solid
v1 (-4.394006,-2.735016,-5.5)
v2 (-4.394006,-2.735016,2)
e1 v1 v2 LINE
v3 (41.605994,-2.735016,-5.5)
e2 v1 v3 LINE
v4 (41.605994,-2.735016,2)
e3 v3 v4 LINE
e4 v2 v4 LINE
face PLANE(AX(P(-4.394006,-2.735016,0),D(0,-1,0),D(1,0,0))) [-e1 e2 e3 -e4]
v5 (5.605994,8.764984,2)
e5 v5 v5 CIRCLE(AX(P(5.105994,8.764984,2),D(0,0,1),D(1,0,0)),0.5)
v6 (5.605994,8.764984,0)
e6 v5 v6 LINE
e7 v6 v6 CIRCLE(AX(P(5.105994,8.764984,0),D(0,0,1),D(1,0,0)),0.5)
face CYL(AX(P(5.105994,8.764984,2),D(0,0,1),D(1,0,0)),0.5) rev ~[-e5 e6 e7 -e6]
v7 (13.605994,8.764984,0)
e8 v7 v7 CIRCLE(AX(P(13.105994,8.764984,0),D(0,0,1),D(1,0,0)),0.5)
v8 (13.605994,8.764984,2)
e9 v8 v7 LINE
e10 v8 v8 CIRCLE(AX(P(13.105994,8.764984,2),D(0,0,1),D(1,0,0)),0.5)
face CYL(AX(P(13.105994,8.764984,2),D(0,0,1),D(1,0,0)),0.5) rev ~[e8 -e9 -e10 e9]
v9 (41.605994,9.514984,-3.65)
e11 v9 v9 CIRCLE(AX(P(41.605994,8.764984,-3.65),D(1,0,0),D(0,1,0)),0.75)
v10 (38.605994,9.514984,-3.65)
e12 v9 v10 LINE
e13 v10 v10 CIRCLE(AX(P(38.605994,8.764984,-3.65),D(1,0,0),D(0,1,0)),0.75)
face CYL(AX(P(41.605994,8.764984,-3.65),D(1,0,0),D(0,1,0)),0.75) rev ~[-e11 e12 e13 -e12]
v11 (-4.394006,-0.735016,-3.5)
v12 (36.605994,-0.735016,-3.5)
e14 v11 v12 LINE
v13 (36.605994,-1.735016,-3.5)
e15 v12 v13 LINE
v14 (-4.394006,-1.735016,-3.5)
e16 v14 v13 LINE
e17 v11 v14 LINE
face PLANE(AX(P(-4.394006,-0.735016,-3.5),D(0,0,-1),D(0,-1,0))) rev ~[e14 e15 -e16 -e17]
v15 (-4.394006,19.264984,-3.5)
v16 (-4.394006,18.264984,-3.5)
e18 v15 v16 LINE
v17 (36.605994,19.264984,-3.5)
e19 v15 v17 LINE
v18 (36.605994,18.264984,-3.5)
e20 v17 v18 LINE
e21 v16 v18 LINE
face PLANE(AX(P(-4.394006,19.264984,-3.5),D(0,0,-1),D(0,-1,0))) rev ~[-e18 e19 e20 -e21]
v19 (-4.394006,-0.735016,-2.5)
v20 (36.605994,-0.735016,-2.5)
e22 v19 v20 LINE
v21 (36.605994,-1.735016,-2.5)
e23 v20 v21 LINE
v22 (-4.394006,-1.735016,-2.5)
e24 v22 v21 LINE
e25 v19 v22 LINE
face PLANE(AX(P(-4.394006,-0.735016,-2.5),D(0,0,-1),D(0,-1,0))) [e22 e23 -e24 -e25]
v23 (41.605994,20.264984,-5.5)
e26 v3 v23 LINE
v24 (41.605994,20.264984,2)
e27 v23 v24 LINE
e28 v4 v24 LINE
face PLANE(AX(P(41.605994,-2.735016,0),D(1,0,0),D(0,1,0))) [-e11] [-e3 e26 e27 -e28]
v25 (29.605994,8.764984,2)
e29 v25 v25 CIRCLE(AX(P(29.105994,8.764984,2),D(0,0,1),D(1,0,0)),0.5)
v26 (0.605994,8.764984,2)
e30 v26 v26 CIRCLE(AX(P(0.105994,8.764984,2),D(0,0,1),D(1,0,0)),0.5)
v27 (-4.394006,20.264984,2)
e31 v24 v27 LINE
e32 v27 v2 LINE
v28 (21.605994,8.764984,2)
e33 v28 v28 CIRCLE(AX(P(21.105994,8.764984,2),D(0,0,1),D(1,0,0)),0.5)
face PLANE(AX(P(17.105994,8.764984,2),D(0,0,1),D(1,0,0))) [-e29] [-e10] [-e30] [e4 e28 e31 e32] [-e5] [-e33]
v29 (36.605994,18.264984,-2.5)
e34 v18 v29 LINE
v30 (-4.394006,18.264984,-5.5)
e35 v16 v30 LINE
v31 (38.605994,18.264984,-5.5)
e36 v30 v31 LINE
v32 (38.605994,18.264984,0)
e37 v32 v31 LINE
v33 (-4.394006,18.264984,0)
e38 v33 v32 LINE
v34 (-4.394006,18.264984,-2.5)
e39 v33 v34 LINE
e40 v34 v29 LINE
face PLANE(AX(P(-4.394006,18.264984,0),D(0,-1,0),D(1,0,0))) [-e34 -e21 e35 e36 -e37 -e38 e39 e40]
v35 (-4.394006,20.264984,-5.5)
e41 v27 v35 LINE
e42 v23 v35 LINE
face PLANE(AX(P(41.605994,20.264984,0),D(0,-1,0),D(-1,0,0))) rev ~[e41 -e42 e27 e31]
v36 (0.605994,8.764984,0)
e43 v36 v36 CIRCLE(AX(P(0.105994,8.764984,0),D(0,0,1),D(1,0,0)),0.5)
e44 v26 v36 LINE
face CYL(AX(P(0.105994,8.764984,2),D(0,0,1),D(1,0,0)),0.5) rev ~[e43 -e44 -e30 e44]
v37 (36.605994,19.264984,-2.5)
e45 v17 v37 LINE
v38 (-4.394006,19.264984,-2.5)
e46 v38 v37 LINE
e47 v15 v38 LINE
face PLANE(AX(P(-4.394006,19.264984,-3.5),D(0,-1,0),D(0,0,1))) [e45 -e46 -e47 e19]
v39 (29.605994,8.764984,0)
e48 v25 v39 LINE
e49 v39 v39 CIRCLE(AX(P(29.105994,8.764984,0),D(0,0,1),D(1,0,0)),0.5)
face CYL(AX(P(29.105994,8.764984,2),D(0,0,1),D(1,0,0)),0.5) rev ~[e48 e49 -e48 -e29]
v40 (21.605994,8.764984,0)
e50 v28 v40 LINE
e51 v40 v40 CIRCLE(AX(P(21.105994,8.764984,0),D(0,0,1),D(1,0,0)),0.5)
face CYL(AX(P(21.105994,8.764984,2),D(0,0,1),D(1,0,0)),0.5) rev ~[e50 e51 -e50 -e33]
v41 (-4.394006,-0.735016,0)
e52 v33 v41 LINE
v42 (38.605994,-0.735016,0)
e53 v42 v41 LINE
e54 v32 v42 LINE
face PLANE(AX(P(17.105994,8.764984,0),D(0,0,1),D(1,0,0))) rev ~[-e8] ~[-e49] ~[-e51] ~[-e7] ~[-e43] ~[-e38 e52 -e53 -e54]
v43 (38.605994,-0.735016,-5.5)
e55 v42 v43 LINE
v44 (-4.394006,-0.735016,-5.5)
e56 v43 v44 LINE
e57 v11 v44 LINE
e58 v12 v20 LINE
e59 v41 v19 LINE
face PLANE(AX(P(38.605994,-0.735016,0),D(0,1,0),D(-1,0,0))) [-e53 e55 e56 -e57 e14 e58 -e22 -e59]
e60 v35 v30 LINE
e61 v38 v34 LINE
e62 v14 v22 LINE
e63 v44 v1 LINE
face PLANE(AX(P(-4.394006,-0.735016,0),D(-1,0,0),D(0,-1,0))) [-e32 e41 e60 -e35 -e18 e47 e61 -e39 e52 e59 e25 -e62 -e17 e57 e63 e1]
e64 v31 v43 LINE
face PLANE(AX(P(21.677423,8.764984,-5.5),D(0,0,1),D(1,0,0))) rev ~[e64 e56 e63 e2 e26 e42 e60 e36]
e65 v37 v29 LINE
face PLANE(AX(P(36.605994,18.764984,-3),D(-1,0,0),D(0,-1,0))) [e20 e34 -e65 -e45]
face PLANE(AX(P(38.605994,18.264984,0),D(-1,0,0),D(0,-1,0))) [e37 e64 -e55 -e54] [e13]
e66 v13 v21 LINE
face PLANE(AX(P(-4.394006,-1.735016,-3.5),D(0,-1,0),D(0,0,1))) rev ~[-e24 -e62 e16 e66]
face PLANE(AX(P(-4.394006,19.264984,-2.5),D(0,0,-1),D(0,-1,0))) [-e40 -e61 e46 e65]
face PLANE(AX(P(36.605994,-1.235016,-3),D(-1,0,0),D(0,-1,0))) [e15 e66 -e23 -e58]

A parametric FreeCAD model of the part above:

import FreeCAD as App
import Part
import Sketcher

V = App.Vector


def add_polygon(sketch, points):
    """Adds a closed chain of lines whose ends are joined by coincident constraints."""
    first, n = sketch.GeometryCount, len(points)
    for a, b in zip(points, points[1:] + points[:1]):
        sketch.addGeometry(Part.LineSegment(App.Vector(*a, 0), App.Vector(*b, 0)), False)
    for i in range(n):
        sketch.addConstraint(Sketcher.Constraint("Coincident", first + i, 2, first + (i + 1) % n, 1))

doc = App.newDocument("Part")
body = doc.addObject("PartDesign::Body", "Body")

sketch1 = doc.addObject("Sketcher::SketchObject", "Sketch")
body.addObject(sketch1)
sketch1.AttachmentSupport = (doc.XY_Plane, [""])
sketch1.MapMode = "FlatFace"
add_polygon(sketch1, [(-4, -3), (42, -3), (42, 20), (-4, 20)])
sketch1.addConstraint([
    Sketcher.Constraint("Horizontal", 0),
    Sketcher.Constraint("Vertical", 1),
    Sketcher.Constraint("Horizontal", 2),
    Sketcher.Constraint("Vertical", 3),
    Sketcher.Constraint("DistanceX", 0, 1, 0, 2, 46.0),
    Sketcher.Constraint("DistanceY", 1, 1, 1, 2, 23.0),
    Sketcher.Constraint("DistanceX", -1, 1, 0, 2, 41.605994),
    Sketcher.Constraint("DistanceY", 0, 2, -1, 1, 2.735016),
])
pad1 = doc.addObject("PartDesign::Pad", "Pad")
body.addObject(pad1)
pad1.Profile = sketch1
pad1.Length = 2

sketch2 = doc.addObject("Sketcher::SketchObject", "Sketch001")
body.addObject(sketch2)
sketch2.AttachmentSupport = (doc.XY_Plane, [""])
sketch2.MapMode = "FlatFace"
add_polygon(sketch2, [(-4.4, -0.7), (-4.4, -2.7), (41.6, -2.7), (41.6, 20.3), (-4.4, 20.3), (-4.4, 18.3), (38.6, 18.3), (38.6, -0.7)])
sketch2.addConstraint([
    Sketcher.Constraint("Vertical", 0),
    Sketcher.Constraint("Horizontal", 1),
    Sketcher.Constraint("Vertical", 2),
    Sketcher.Constraint("Horizontal", 3),
    Sketcher.Constraint("Vertical", 4),
    Sketcher.Constraint("Horizontal", 5),
    Sketcher.Constraint("Vertical", 6),
    Sketcher.Constraint("Horizontal", 7),
    Sketcher.Constraint("Vertical", 0, 2, 3, 2),
    Sketcher.Constraint("Equal", 0, 4),
    Sketcher.Constraint("DistanceX", 1, 1, 1, 2, 46.0),
    Sketcher.Constraint("DistanceX", 5, 1, 5, 2, 43.0),
    Sketcher.Constraint("DistanceY", 0, 2, 0, 1, 2.0),
    Sketcher.Constraint("DistanceY", 2, 1, 2, 2, 23.0),
    Sketcher.Constraint("DistanceX", 0, 2, -1, 1, 4.394006),
    Sketcher.Constraint("DistanceY", 0, 2, -1, 1, 2.735016),
])
pad2 = doc.addObject("PartDesign::Pad", "Pad001")
body.addObject(pad2)
pad2.Profile = sketch2
pad2.Length = 5.5
pad2.Reversed = True

sketch3 = doc.addObject("Sketcher::SketchObject", "Sketch002")
body.addObject(sketch3)
sketch3.AttachmentSupport = (doc.YZ_Plane, [""])
sketch3.MapMode = "FlatFace"
sketch3.AttachmentOffset = App.Placement(V(0, 0, -4.394006), App.Rotation())
add_polygon(sketch3, [(19.3, -2.5), (19.3, -3.5), (18.3, -3.5), (18.3, -2.5)])
add_polygon(sketch3, [(-0.7, -2.5), (-0.7, -3.5), (-1.7, -3.5), (-1.7, -2.5)])
sketch3.addConstraint([
    Sketcher.Constraint("Vertical", 0),
    Sketcher.Constraint("Horizontal", 1),
    Sketcher.Constraint("Vertical", 2),
    Sketcher.Constraint("Horizontal", 3),
    Sketcher.Constraint("Vertical", 4),
    Sketcher.Constraint("Horizontal", 5),
    Sketcher.Constraint("Vertical", 6),
    Sketcher.Constraint("Horizontal", 7),
    Sketcher.Constraint("Horizontal", 1, 2, 4, 2),
    Sketcher.Constraint("Horizontal", 3, 2, 6, 2),
    Sketcher.Constraint("Equal", 3, 5),
    Sketcher.Constraint("Equal", 7, 0),
    Sketcher.Constraint("DistanceX", 1, 2, 1, 1, 1.0),
    Sketcher.Constraint("DistanceX", 4, 2, 1, 2, 19.0),
    Sketcher.Constraint("DistanceY", 0, 2, -1, 1, 3.5),
    Sketcher.Constraint("DistanceX", -1, 1, 0, 2, 19.264984),
])
pocket1 = doc.addObject("PartDesign::Pocket", "Pocket")
body.addObject(pocket1)
pocket1.Profile = sketch3
pocket1.Length = 41
pocket1.Reversed = True

sketch4 = doc.addObject("Sketcher::SketchObject", "Sketch003")
body.addObject(sketch4)
sketch4.AttachmentSupport = (doc.YZ_Plane, [""])
sketch4.MapMode = "FlatFace"
sketch4.AttachmentOffset = App.Placement(V(0, 0, 41.605994), App.Rotation())
sketch4.addGeometry(Part.Circle(V(8.8, -3.6, 0), V(0, 0, 1), 0.8), False)
sketch4.addConstraint([
    Sketcher.Constraint("Diameter", 0, 1.5),
    Sketcher.Constraint("DistanceY", 0, 3, -1, 1, 3.65),
    Sketcher.Constraint("DistanceX", -1, 1, 0, 3, 8.764984),
])
pocket2 = doc.addObject("PartDesign::Pocket", "Pocket001")
body.addObject(pocket2)
pocket2.Profile = sketch4
pocket2.Type = "ThroughAll"

sketch5 = doc.addObject("Sketcher::SketchObject", "Sketch004")
body.addObject(sketch5)
sketch5.AttachmentSupport = (doc.XY_Plane, [""])
sketch5.MapMode = "FlatFace"
sketch5.AttachmentOffset = App.Placement(V(0, 0, 2), App.Rotation())
sketch5.addGeometry([
    Part.Circle(V(5.1, 8.8, 0), V(0, 0, 1), 0.5),
    Part.Circle(V(13.1, 8.8, 0), V(0, 0, 1), 0.5),
    Part.Circle(V(21.1, 8.8, 0), V(0, 0, 1), 0.5),
    Part.Circle(V(29.1, 8.8, 0), V(0, 0, 1), 0.5),
    Part.Circle(V(0.1, 8.8, 0), V(0, 0, 1), 0.5),
], False)
sketch5.addConstraint([
    Sketcher.Constraint("Equal", 0, 1),
    Sketcher.Constraint("Equal", 1, 2),
    Sketcher.Constraint("Equal", 2, 3),
    Sketcher.Constraint("Equal", 3, 4),
    Sketcher.Constraint("Horizontal", 0, 3, 1, 3),
    Sketcher.Constraint("Horizontal", 1, 3, 2, 3),
    Sketcher.Constraint("Horizontal", 2, 3, 3, 3),
    Sketcher.Constraint("Horizontal", 3, 3, 4, 3),
    Sketcher.Constraint("Diameter", 0, 1.0),
    Sketcher.Constraint("DistanceX", 0, 3, 1, 3, 8.0),
    Sketcher.Constraint("DistanceX", 1, 3, 2, 3, 8.0),
    Sketcher.Constraint("DistanceX", 2, 3, 3, 3, 8.0),
    Sketcher.Constraint("DistanceX", 4, 3, 0, 3, 5.0),
    Sketcher.Constraint("DistanceX", -1, 1, 0, 3, 5.105994),
    Sketcher.Constraint("DistanceY", -1, 1, 0, 3, 8.764984),
])
pocket3 = doc.addObject("PartDesign::Pocket", "Pocket002")
body.addObject(pocket3)
pocket3.Profile = sketch5
pocket3.Type = "ThroughAll"

doc.recompute()
